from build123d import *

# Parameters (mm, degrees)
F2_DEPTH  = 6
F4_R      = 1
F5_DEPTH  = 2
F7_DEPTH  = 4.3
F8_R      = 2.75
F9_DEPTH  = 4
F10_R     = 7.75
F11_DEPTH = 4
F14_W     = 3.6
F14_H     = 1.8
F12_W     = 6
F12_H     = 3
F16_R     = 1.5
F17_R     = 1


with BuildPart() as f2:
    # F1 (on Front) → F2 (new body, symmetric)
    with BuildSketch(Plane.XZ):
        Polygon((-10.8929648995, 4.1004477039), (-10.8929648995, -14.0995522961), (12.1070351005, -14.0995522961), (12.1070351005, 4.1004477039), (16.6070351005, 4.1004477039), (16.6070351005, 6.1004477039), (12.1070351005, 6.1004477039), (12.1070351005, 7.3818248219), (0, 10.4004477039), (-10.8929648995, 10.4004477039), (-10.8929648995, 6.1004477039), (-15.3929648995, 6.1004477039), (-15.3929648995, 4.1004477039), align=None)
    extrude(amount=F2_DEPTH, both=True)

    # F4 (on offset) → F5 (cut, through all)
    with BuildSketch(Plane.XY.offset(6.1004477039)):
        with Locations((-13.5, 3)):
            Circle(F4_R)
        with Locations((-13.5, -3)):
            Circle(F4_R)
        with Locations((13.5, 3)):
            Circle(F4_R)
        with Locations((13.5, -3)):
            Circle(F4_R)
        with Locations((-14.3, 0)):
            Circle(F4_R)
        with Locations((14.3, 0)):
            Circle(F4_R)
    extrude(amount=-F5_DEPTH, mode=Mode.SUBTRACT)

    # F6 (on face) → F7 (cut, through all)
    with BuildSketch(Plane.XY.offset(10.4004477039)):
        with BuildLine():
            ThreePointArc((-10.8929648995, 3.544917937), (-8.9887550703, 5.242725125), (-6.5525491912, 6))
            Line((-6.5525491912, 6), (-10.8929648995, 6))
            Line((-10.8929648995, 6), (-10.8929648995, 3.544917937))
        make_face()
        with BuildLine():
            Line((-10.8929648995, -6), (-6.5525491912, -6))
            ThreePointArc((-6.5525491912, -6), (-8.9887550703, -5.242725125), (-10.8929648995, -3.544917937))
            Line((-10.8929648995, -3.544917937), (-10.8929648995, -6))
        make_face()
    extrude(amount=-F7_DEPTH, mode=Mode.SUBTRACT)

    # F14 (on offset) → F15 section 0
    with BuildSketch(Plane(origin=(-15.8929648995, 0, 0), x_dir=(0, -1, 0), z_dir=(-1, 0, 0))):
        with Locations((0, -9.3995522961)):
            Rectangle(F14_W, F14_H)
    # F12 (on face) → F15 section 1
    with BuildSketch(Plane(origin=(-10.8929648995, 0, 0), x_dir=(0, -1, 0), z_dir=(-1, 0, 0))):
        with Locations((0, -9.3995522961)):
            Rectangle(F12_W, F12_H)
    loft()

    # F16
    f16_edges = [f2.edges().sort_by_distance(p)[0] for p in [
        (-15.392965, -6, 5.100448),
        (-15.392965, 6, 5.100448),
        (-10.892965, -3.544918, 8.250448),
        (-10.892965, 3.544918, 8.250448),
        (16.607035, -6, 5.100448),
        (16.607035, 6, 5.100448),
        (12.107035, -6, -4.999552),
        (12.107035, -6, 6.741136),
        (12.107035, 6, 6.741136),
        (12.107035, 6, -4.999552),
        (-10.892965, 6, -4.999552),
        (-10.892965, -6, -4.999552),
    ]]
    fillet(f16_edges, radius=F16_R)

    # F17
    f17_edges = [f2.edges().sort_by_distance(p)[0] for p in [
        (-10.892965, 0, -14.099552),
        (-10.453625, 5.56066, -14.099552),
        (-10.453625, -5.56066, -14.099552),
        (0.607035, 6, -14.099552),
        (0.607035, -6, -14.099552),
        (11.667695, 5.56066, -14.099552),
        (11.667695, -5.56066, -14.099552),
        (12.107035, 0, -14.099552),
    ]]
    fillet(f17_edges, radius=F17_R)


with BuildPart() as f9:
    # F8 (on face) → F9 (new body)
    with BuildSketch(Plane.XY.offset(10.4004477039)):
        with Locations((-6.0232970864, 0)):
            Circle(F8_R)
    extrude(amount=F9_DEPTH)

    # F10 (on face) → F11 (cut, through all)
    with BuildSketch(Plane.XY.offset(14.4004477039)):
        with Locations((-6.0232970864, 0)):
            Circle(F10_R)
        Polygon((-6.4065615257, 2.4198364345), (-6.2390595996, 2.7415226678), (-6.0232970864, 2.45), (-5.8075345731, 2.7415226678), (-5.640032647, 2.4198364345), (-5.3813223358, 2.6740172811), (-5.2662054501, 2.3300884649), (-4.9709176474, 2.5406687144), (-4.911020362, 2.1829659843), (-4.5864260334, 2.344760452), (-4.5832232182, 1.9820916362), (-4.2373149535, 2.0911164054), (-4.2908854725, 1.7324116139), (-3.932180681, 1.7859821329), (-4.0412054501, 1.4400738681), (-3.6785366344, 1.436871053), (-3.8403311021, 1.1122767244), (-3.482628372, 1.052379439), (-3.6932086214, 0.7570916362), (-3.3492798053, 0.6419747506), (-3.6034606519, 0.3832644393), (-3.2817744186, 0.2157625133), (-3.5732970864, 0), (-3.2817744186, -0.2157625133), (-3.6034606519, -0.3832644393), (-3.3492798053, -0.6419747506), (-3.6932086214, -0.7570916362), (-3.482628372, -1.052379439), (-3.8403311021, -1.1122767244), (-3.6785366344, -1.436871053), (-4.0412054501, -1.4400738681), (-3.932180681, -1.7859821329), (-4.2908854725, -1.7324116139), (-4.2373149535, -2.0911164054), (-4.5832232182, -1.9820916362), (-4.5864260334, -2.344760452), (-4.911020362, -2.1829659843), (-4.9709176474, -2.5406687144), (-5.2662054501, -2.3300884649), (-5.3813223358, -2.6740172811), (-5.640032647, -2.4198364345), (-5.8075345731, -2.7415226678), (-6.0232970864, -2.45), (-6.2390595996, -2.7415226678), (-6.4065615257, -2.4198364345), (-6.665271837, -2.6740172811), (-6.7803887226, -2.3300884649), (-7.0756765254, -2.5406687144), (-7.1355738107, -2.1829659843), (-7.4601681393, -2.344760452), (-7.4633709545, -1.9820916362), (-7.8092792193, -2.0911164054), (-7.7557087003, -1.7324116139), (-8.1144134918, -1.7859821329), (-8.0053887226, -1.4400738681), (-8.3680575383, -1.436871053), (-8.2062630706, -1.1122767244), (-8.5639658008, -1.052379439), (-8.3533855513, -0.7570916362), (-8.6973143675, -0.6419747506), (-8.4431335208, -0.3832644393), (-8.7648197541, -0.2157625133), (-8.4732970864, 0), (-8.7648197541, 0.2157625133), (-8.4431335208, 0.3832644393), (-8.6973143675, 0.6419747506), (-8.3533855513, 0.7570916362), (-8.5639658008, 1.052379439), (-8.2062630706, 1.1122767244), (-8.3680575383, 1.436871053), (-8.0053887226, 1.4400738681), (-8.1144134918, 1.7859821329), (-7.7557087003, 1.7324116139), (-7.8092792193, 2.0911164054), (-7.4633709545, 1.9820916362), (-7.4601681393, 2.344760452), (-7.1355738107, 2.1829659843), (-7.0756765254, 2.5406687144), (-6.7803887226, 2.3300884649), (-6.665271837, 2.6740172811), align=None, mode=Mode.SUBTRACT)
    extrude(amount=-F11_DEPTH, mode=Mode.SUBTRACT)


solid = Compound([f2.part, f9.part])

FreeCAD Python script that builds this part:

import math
import FreeCAD as App
import Part
import Sketcher
from FreeCAD import Vector
Q = App.Units.Quantity


def edges_at(feature, points):
    """Names of the edges that pass closest to the given points."""
    edges = feature.Shape.Edges
    near = lambda p: min(range(len(edges)), key=lambda i: edges[i].distToShape(Part.Vertex(*p))[0])
    return sorted({f"Edge{near(p) + 1}" for p in points})


def add_polygon(sketch, points):
    """Adds a closed chain of lines whose ends are joined by coincident constraints."""
    first, n = sketch.GeometryCount, len(points)
    for a, b in zip(points, points[1:] + points[:1]):
        sketch.addGeometry(Part.LineSegment(App.Vector(*a, 0), App.Vector(*b, 0)), False)
    for i in range(n):
        sketch.addConstraint(Sketcher.Constraint("Coincident", first + i, 2, first + (i + 1) % n, 1))

doc = App.newDocument("Part")
body = doc.addObject("PartDesign::Body", "Body")

# Sketch on XZ plane
sketch1 = body.newObject("Sketcher::SketchObject", "Sketch")
sketch1.AttachmentSupport = (doc.getObject("XZ_Plane"), [""])
sketch1.MapMode = "FlatFace"
add_polygon(sketch1, [(-10.9, 4.1), (-10.9, -14.1), (12.1, -14.1), (12.1, 4.1), (16.6, 4.1), (16.6, 6.1), (12.1, 6.1), (12.1, 7.4), (0, 10.4), (-10.9, 10.4), (-10.9, 6.1), (-15.4, 6.1), (-15.4, 4.1)])  # lines 0-12
sketch1.addConstraint([
    Sketcher.Constraint("Vertical", 0),
    Sketcher.Constraint("Horizontal", 1),
    Sketcher.Constraint("Vertical", 2),
    Sketcher.Constraint("Horizontal", 3),
    Sketcher.Constraint("Vertical", 4),
    Sketcher.Constraint("Horizontal", 5),
    Sketcher.Constraint("Vertical", 6),
    Sketcher.Constraint("Horizontal", 8),
    Sketcher.Constraint("Vertical", 9),
    Sketcher.Constraint("Horizontal", 10),
    Sketcher.Constraint("Vertical", 11),
    Sketcher.Constraint("Horizontal", 12),
    Sketcher.Constraint("PointOnObject", 7, 2, -2),
    Sketcher.Constraint("Horizontal", 5, 2, 9, 2),
    Sketcher.Constraint("Horizontal", 3, 2, 11, 2),
    Sketcher.Constraint("Vertical", 2, 2, 5, 2),
    Sketcher.Constraint("Vertical", 0, 2, 8, 2),
    Sketcher.Constraint("Equal", 5, 10),
    Sketcher.Constraint("DistanceX", 1, 1, 1, 2, 23.0),
    Sketcher.Constraint("DistanceY", 4, 1, 4, 2, 2.0),
    Sketcher.Constraint("Angle", 7, Q("166 deg")),
    Sketcher.Constraint("DistanceX", 3, 1, 3, 2, 4.5),
    Sketcher.Constraint("DistanceY", 0, 2, 0, 1, 18.2),
    Sketcher.Constraint("DistanceY", 9, 2, 9, 1, 4.3),
    Sketcher.Constraint("DistanceX", 8, 2, 8, 1, 10.892965),
    Sketcher.Constraint("DistanceY", 0, 2, -1, 1, 14.099552),
])
pad1 = body.newObject("PartDesign::Pad", "Pad")
pad1.Profile = sketch1
pad1.Length = 12
pad1.Midplane = True

# Sketch on XY plane
sketch2 = body.newObject("Sketcher::SketchObject", "Sketch001")
sketch2.AttachmentSupport = (doc.getObject("XY_Plane"), [""])
sketch2.MapMode = "FlatFace"
sketch2.AttachmentOffset = App.Placement(Vector(0, 0, 6.100448), App.Rotation())
sketch2.addGeometry([
    Part.Circle(Vector(-13.5, 3, 0), Vector(0, 0, 1), 1),  # 0
    Part.Circle(Vector(-13.5, -3, 0), Vector(0, 0, 1), 1),  # 1
    Part.Circle(Vector(13.5, 3, 0), Vector(0, 0, 1), 1),  # 2
    Part.Circle(Vector(13.5, -3, 0), Vector(0, 0, 1), 1),  # 3
    Part.Circle(Vector(-14.3, 0, 0), Vector(0, 0, 1), 1),  # 4
    Part.Circle(Vector(14.3, 0, 0), Vector(0, 0, 1), 1),  # 5
], False)
sketch2.addConstraint([
    Sketcher.Constraint("Equal", 0, 1),
    Sketcher.Constraint("Equal", 1, 2),
    Sketcher.Constraint("Equal", 2, 3),
    Sketcher.Constraint("Equal", 3, 4),
    Sketcher.Constraint("Equal", 4, 5),
    Sketcher.Constraint("Symmetric", 1, 3, 2, 3, -1, 1),
    Sketcher.Constraint("Symmetric", 0, 3, 3, 3, -1, 1),
    Sketcher.Constraint("Symmetric", 4, 3, 5, 3, -1, 1),
    Sketcher.Constraint("Symmetric", 0, 3, 2, 3, -2),
    Sketcher.Constraint("PointOnObject", 4, 3, -1),
    Sketcher.Constraint("Diameter", 0, 2.0),
    Sketcher.Constraint("DistanceY", -1, 1, 0, 3, 3.0),
    Sketcher.Constraint("DistanceX", 0, 3, 2, 3, 27.0),
    Sketcher.Constraint("DistanceX", 4, 3, -1, 1, 14.3),
])
pocket1 = body.newObject("PartDesign::Pocket", "Pocket")
pocket1.Profile = sketch2
pocket1.Type = "ThroughAll"

# Sketch on XY plane
sketch3 = body.newObject("Sketcher::SketchObject", "Sketch002")
sketch3.AttachmentSupport = (doc.getObject("XY_Plane"), [""])
sketch3.MapMode = "FlatFace"
sketch3.AttachmentOffset = App.Placement(Vector(0, 0, 10.400448), App.Rotation())
sketch3.addGeometry([
    Part.ArcOfCircle(Part.Circle(Vector(-6, 0, 0), Vector(0, 0, 1), 6), math.radians(95), math.radians(144)),  # 0
    Part.LineSegment(Vector(-6.6, 6, 0), Vector(-10.9, 6, 0)),  # 1
    Part.LineSegment(Vector(-10.9, 6, 0), Vector(-10.9, 3.5, 0)),  # 2
    Part.LineSegment(Vector(-10.9, -6, 0), Vector(-6.6, -6, 0)),  # 3
    Part.ArcOfCircle(Part.Circle(Vector(-6, 0, 0), Vector(0, 0, 1), 6), math.radians(-144), math.radians(-95)),  # 4
    Part.LineSegment(Vector(-10.9, -3.5, 0), Vector(-10.9, -6, 0)),  # 5
], False)
sketch3.addConstraint([
    Sketcher.Constraint("Coincident", 0, 1, 1, 1),
    Sketcher.Constraint("Coincident", 1, 2, 2, 1),
    Sketcher.Constraint("Coincident", 2, 2, 0, 2),
    Sketcher.Constraint("Coincident", 3, 2, 4, 2),
    Sketcher.Constraint("Coincident", 4, 1, 5, 1),
    Sketcher.Constraint("Coincident", 5, 2, 3, 1),
    Sketcher.Constraint("Horizontal", 1),
    Sketcher.Constraint("Vertical", 2),
    Sketcher.Constraint("Horizontal", 3),
    Sketcher.Constraint("Vertical", 5),
    Sketcher.Constraint("Coincident", 4, 3, 0, 3),
    Sketcher.Constraint("Equal", 0, 4),
    Sketcher.Constraint("Symmetric", 0, 1, 3, 2, -1),
    Sketcher.Constraint("Vertical", 2, 2, 4, 1),
    Sketcher.Constraint("DistanceY", -1, 1, 0, 1, 6.0),
    Sketcher.Constraint("Radius", 0, 6.023297),
    Sketcher.Constraint("DistanceX", 1, 2, 1, 1, 4.340416),
    Sketcher.Constraint("DistanceX", 0, 1, -1, 1, 6.552549),
])
pocket2 = body.newObject("PartDesign::Pocket", "Pocket001")
pocket2.Profile = sketch3
pocket2.Length = 4.3

# Sketch on YZ plane
sketch4 = body.newObject("Sketcher::SketchObject", "Sketch003")
sketch4.AttachmentSupport = (doc.getObject("YZ_Plane"), [""])
sketch4.MapMode = "FlatFace"
sketch4.AttachmentOffset = App.Placement(Vector(0, 0, -15.892965), App.Rotation())
add_polygon(sketch4, [(1.8, -8.5), (1.8, -10.3), (-1.8, -10.3), (-1.8, -8.5)])  # lines 0-3
sketch4.addConstraint([
    Sketcher.Constraint("Vertical", 0),
    Sketcher.Constraint("Horizontal", 1),
    Sketcher.Constraint("Vertical", 2),
    Sketcher.Constraint("Horizontal", 3),
    Sketcher.Constraint("DistanceX", 1, 2, 1, 1, 3.6),
    Sketcher.Constraint("DistanceY", 0, 2, 0, 1, 1.8),
    Sketcher.Constraint("DistanceX", -1, 1, 0, 2, 1.8),
    Sketcher.Constraint("DistanceY", 0, 2, -1, 1, 10.299552),
])

# Sketch on YZ plane
sketch5 = body.newObject("Sketcher::SketchObject", "Sketch004")
sketch5.AttachmentSupport = (doc.getObject("YZ_Plane"), [""])
sketch5.MapMode = "FlatFace"
sketch5.AttachmentOffset = App.Placement(Vector(0, 0, -10.892965), App.Rotation())
add_polygon(sketch5, [(3, -7.9), (3, -10.9), (-3, -10.9), (-3, -7.9)])  # lines 0-3
sketch5.addConstraint([
    Sketcher.Constraint("Vertical", 0),
    Sketcher.Constraint("Horizontal", 1),
    Sketcher.Constraint("Vertical", 2),
    Sketcher.Constraint("Horizontal", 3),
    Sketcher.Constraint("DistanceX", 1, 2, 1, 1, 6.0),
    Sketcher.Constraint("DistanceY", 0, 2, 0, 1, 3.0),
    Sketcher.Constraint("DistanceX", -1, 1, 0, 2, 3.0),
    Sketcher.Constraint("DistanceY", 0, 2, -1, 1, 10.899552),
])

additiveloft = body.newObject("PartDesign::AdditiveLoft", "AdditiveLoft")
additiveloft.Profile = sketch4
additiveloft.Sections = [sketch5]
doc.recompute()

fillet = body.newObject("PartDesign::Fillet", "Fillet")
fillet.Base = (additiveloft, edges_at(additiveloft, [
    (-15.393, -6, 5.1),
    (-15.393, 6, 5.1),
    (-10.893, -3.545, 8.25),
    (-10.893, 3.545, 8.25),
    (16.607, -6, 5.1),
    (16.607, 6, 5.1),
    (12.107, -6, -5),
    (12.107, -6, 6.741),
    (12.107, 6, 6.741),
    (12.107, 6, -5),
    (-10.893, 6, -5),
    (-10.893, -6, -5),
]))
fillet.Radius = 1.5
doc.recompute()

fillet2 = body.newObject("PartDesign::Fillet", "Fillet001")
fillet2.Base = (fillet, edges_at(fillet, [
    (-10.893, 0, -14.1),
    (-10.454, 5.561, -14.1),
    (-10.454, -5.561, -14.1),
    (0.607, 6, -14.1),
    (0.607, -6, -14.1),
    (11.668, 5.561, -14.1),
    (11.668, -5.561, -14.1),
    (12.107, 0, -14.1),
]))
fillet2.Radius = 1
body2 = doc.addObject("PartDesign::Body", "Body001")

# Sketch on XY plane
sketch6 = body2.newObject("Sketcher::SketchObject", "Sketch005")
sketch6.AttachmentSupport = (doc.getObject("XY_Plane001"), [""])
sketch6.MapMode = "FlatFace"
sketch6.AttachmentOffset = App.Placement(Vector(0, 0, 10.400448), App.Rotation())
sketch6.addGeometry(Part.Circle(Vector(-6, 0, 0), Vector(0, 0, 1), 2.8), False)
sketch6.addConstraint([
    Sketcher.Constraint("PointOnObject", 0, 3, -1),
    Sketcher.Constraint("Diameter", 0, 5.5),
    Sketcher.Constraint("DistanceX", 0, 3, -1, 1, 6.023297),
])
pad2 = body2.newObject("PartDesign::Pad", "Pad001")
pad2.Profile = sketch6
pad2.Length = 4

# Sketch on XY plane
sketch7 = body2.newObject("Sketcher::SketchObject", "Sketch006")
sketch7.AttachmentSupport = (doc.getObject("XY_Plane001"), [""])
sketch7.MapMode = "FlatFace"
sketch7.AttachmentOffset = App.Placement(Vector(0, 0, 14.400448), App.Rotation())
sketch7.addGeometry(Part.Circle(Vector(-6.02, 0, 0), Vector(0, 0, 1), 7.75), False)  # 0
add_polygon(sketch7, [(-6.67, 2.67), (-6.41, 2.42), (-6.24, 2.74), (-6.02, 2.45), (-5.81, 2.74), (-5.64, 2.42), (-5.38, 2.67), (-5.27, 2.33), (-4.97, 2.54), (-4.91, 2.18), (-4.59, 2.34), (-4.58, 1.98), (-4.24, 2.09), (-4.29, 1.73), (-3.93, 1.79), (-4.04, 1.44), (-3.68, 1.44), (-3.84, 1.11), (-3.48, 1.05), (-3.69, 0.76), (-3.35, 0.64), (-3.6, 0.38), (-3.28, 0.22), (-3.57, 0), (-3.28, -0.22), (-3.6, -0.38), (-3.35, -0.64), (-3.69, -0.76), (-3.48, -1.05), (-3.84, -1.11), (-3.68, -1.44), (-4.04, -1.44), (-3.93, -1.79), (-4.29, -1.73), (-4.24, -2.09), (-4.58, -1.98), (-4.59, -2.34), (-4.91, -2.18), (-4.97, -2.54), (-5.27, -2.33), (-5.38, -2.67), (-5.64, -2.42), (-5.81, -2.74), (-6.02, -2.45), (-6.24, -2.74), (-6.41, -2.42), (-6.67, -2.67), (-6.78, -2.33), (-7.08, -2.54), (-7.14, -2.18), (-7.46, -2.34), (-7.46, -1.98), (-7.81, -2.09), (-7.76, -1.73), (-8.11, -1.79), (-8.01, -1.44), (-8.37, -1.44), (-8.21, -1.11), (-8.56, -1.05), (-8.35, -0.76), (-8.7, -0.64), (-8.44, -0.38), (-8.76, -0.22), (-8.47, 0), (-8.76, 0.22), (-8.44, 0.38), (-8.7, 0.64), (-8.35, 0.76), (-8.56, 1.05), (-8.21, 1.11), (-8.37, 1.44), (-8.01, 1.44), (-8.11, 1.79), (-7.76, 1.73), (-7.81, 2.09), (-7.46, 1.98), (-7.46, 2.34), (-7.14, 2.18), (-7.08, 2.54), (-6.78, 2.33)])  # lines 1-80
sketch7.addConstraint([
    Sketcher.Constraint("Symmetric", 22, 2, 24, 2, -1),
    Sketcher.Constraint("Symmetric", 21, 2, 25, 2, -1),
    Sketcher.Constraint("Symmetric", 20, 2, 26, 2, -1),
    Sketcher.Constraint("Symmetric", 19, 2, 27, 2, -1),
    Sketcher.Constraint("Symmetric", 18, 2, 28, 2, -1),
    Sketcher.Constraint("Symmetric", 17, 2, 29, 2, -1),
    Sketcher.Constraint("Symmetric", 16, 2, 30, 2, -1),
    Sketcher.Constraint("Symmetric", 15, 2, 31, 2, -1),
    Sketcher.Constraint("Symmetric", 14, 2, 32, 2, -1),
    Sketcher.Constraint("Symmetric", 13, 2, 33, 2, -1),
    Sketcher.Constraint("Symmetric", 12, 2, 34, 2, -1),
    Sketcher.Constraint("Symmetric", 11, 2, 35, 2, -1),
    Sketcher.Constraint("Symmetric", 10, 2, 36, 2, -1),
    Sketcher.Constraint("Symmetric", 9, 2, 37, 2, -1),
    Sketcher.Constraint("Symmetric", 8, 2, 38, 2, -1),
    Sketcher.Constraint("Symmetric", 7, 2, 39, 2, -1),
    Sketcher.Constraint("Symmetric", 6, 2, 40, 2, -1),
    Sketcher.Constraint("Symmetric", 5, 2, 41, 2, -1),
    Sketcher.Constraint("Symmetric", 4, 2, 42, 2, -1),
    Sketcher.Constraint("Symmetric", 3, 2, 43, 2, -1),
    Sketcher.Constraint("Symmetric", 2, 2, 44, 2, -1),
    Sketcher.Constraint("Symmetric", 1, 2, 45, 2, -1),
    Sketcher.Constraint("Symmetric", 62, 2, 64, 2, -1),
    Sketcher.Constraint("Symmetric", 61, 2, 65, 2, -1),
    Sketcher.Constraint("Symmetric", 60, 2, 66, 2, -1),
    Sketcher.Constraint("Symmetric", 59, 2, 67, 2, -1),
    Sketcher.Constraint("Symmetric", 58, 2, 68, 2, -1),
    Sketcher.Constraint("Symmetric", 57, 2, 69, 2, -1),
    Sketcher.Constraint("Symmetric", 56, 2, 70, 2, -1),
    Sketcher.Constraint("Symmetric", 55, 2, 71, 2, -1),
    Sketcher.Constraint("Symmetric", 54, 2, 72, 2, -1),
    Sketcher.Constraint("Symmetric", 53, 2, 73, 2, -1),
    Sketcher.Constraint("Symmetric", 52, 2, 74, 2, -1),
    Sketcher.Constraint("Symmetric", 51, 2, 75, 2, -1),
    Sketcher.Constraint("Symmetric", 50, 2, 76, 2, -1),
    Sketcher.Constraint("Symmetric", 49, 2, 77, 2, -1),
    Sketcher.Constraint("Symmetric", 48, 2, 78, 2, -1),
    Sketcher.Constraint("Symmetric", 47, 2, 79, 2, -1),
    Sketcher.Constraint("Symmetric", 46, 2, 80, 2, -1),
    Sketcher.Constraint("PointOnObject", 0, 3, -1),
    Sketcher.Constraint("PointOnObject", 23, 2, -1),
    Sketcher.Constraint("PointOnObject", 63, 2, -1),
    Sketcher.Constraint("Perpendicular", 1, 21),
    Sketcher.Constraint("Perpendicular", 2, 22),
    Sketcher.Constraint("Perpendicular", 3, 23),
    Sketcher.Constraint("Perpendicular", 4, 24),
    Sketcher.Constraint("Perpendicular", 5, 25),
    Sketcher.Constraint("Perpendicular", 6, 26),
    Sketcher.Constraint("Perpendicular", 7, 27),
    Sketcher.Constraint("Perpendicular", 8, 28),
    Sketcher.Constraint("Perpendicular", 9, 29),
    Sketcher.Constraint("Perpendicular", 10, 30),
    Sketcher.Constraint("Perpendicular", 11, 31),
    Sketcher.Constraint("Perpendicular", 12, 32),
    Sketcher.Constraint("Perpendicular", 13, 33),
    Sketcher.Constraint("Perpendicular", 27, 47),
    Sketcher.Constraint("Perpendicular", 28, 48),
    Sketcher.Constraint("Perpendicular", 29, 49),
    Sketcher.Constraint("Perpendicular", 30, 50),
    Sketcher.Constraint("Perpendicular", 31, 51),
    Sketcher.Constraint("Perpendicular", 32, 52),
    Sketcher.Constraint("Perpendicular", 33, 53),
    Sketcher.Constraint("Perpendicular", 34, 54),
    Sketcher.Constraint("Perpendicular", 35, 55),
    Sketcher.Constraint("Perpendicular", 36, 56),
    Sketcher.Constraint("Perpendicular", 37, 57),
    Sketcher.Constraint("Perpendicular", 38, 58),
    Sketcher.Constraint("Perpendicular", 39, 59),
    Sketcher.Constraint("Perpendicular", 40, 60),
    Sketcher.Constraint("Perpendicular", 41, 61),
    Sketcher.Constraint("Perpendicular", 42, 62),
    Sketcher.Constraint("Perpendicular", 43, 63),
    Sketcher.Constraint("Horizontal", 2, 2, 4, 2),
    Sketcher.Constraint("Horizontal", 1, 2, 5, 2),
    Sketcher.Constraint("Horizontal", 40, 2, 46, 2),
    Sketcher.Constraint("Horizontal", 39, 2, 47, 2),
    Sketcher.Constraint("Horizontal", 38, 2, 48, 2),
    Sketcher.Constraint("Horizontal", 37, 2, 49, 2),
    Sketcher.Constraint("Horizontal", 36, 2, 50, 2),
    Sketcher.Constraint("Horizontal", 35, 2, 51, 2),
    Sketcher.Constraint("Horizontal", 34, 2, 52, 2),
    Sketcher.Constraint("Horizontal", 33, 2, 53, 2),
    Sketcher.Constraint("Horizontal", 32, 2, 54, 2),
    Sketcher.Constraint("Horizontal", 31, 2, 55, 2),
    Sketcher.Constraint("Horizontal", 30, 2, 56, 2),
    Sketcher.Constraint("Horizontal", 29, 2, 57, 2),
    Sketcher.Constraint("Horizontal", 28, 2, 58, 2),
    Sketcher.Constraint("Horizontal", 27, 2, 59, 2),
    Sketcher.Constraint("Horizontal", 26, 2, 60, 2),
    Sketcher.Constraint("Horizontal", 25, 2, 61, 2),
    Sketcher.Constraint("Horizontal", 24, 2, 62, 2),
    Sketcher.Constraint("Vertical", 0, 3, 3, 2),
    Sketcher.Constraint("Equal", 1, 2),
    Sketcher.Constraint("Equal", 2, 3),
    Sketcher.Constraint("Equal", 6, 7),
    Sketcher.Constraint("Equal", 7, 8),
    Sketcher.Constraint("Equal", 8, 9),
    Sketcher.Constraint("Equal", 9, 10),
    Sketcher.Constraint("Equal", 10, 11),
    Sketcher.Constraint("Equal", 11, 12),
    Sketcher.Constraint("Equal", 12, 13),
    Sketcher.Constraint("Equal", 13, 14),
    Sketcher.Constraint("Equal", 14, 15),
    Sketcher.Constraint("Equal", 15, 16),
    Sketcher.Constraint("Equal", 16, 17),
    Sketcher.Constraint("Equal", 17, 18),
    Sketcher.Constraint("Equal", 18, 19),
    Sketcher.Constraint("Equal", 19, 20),
    Sketcher.Constraint("Equal", 20, 21),
    Sketcher.Constraint("Equal", 21, 22),
    Sketcher.Constraint("Equal", 22, 23),
    Sketcher.Constraint("Diameter", 0, 15.5),
    Sketcher.Constraint("DistanceY", -1, 1, 3, 2, 2.45),
    Sketcher.Constraint("DistanceX", 1, 2, -1, 1, 6.406562),
    Sketcher.Constraint("DistanceX", 2, 2, -1, 1, 6.23906),
    Sketcher.Constraint("DistanceY", -1, 1, 7, 2, 2.330088),
    Sketcher.Constraint("DistanceY", -1, 1, 8, 2, 2.540669),
    Sketcher.Constraint("DistanceX", 9, 2, -1, 1, 4.91102),
    Sketcher.Constraint("DistanceY", -1, 1, 10, 2, 2.34476),
    Sketcher.Constraint("DistanceY", -1, 1, 11, 2, 1.982092),
    Sketcher.Constraint("DistanceY", -1, 1, 13, 2, 1.732412),
    Sketcher.Constraint("DistanceX", 14, 2, -1, 1, 3.932181),
    Sketcher.Constraint("DistanceY", -1, 1, 16, 2, 1.436871),
    Sketcher.Constraint("DistanceX", 17, 2, -1, 1, 3.840331),
])
pocket3 = body2.newObject("PartDesign::Pocket", "Pocket002")
pocket3.Profile = sketch7
pocket3.Type = "ThroughAll"

doc.recompute()
